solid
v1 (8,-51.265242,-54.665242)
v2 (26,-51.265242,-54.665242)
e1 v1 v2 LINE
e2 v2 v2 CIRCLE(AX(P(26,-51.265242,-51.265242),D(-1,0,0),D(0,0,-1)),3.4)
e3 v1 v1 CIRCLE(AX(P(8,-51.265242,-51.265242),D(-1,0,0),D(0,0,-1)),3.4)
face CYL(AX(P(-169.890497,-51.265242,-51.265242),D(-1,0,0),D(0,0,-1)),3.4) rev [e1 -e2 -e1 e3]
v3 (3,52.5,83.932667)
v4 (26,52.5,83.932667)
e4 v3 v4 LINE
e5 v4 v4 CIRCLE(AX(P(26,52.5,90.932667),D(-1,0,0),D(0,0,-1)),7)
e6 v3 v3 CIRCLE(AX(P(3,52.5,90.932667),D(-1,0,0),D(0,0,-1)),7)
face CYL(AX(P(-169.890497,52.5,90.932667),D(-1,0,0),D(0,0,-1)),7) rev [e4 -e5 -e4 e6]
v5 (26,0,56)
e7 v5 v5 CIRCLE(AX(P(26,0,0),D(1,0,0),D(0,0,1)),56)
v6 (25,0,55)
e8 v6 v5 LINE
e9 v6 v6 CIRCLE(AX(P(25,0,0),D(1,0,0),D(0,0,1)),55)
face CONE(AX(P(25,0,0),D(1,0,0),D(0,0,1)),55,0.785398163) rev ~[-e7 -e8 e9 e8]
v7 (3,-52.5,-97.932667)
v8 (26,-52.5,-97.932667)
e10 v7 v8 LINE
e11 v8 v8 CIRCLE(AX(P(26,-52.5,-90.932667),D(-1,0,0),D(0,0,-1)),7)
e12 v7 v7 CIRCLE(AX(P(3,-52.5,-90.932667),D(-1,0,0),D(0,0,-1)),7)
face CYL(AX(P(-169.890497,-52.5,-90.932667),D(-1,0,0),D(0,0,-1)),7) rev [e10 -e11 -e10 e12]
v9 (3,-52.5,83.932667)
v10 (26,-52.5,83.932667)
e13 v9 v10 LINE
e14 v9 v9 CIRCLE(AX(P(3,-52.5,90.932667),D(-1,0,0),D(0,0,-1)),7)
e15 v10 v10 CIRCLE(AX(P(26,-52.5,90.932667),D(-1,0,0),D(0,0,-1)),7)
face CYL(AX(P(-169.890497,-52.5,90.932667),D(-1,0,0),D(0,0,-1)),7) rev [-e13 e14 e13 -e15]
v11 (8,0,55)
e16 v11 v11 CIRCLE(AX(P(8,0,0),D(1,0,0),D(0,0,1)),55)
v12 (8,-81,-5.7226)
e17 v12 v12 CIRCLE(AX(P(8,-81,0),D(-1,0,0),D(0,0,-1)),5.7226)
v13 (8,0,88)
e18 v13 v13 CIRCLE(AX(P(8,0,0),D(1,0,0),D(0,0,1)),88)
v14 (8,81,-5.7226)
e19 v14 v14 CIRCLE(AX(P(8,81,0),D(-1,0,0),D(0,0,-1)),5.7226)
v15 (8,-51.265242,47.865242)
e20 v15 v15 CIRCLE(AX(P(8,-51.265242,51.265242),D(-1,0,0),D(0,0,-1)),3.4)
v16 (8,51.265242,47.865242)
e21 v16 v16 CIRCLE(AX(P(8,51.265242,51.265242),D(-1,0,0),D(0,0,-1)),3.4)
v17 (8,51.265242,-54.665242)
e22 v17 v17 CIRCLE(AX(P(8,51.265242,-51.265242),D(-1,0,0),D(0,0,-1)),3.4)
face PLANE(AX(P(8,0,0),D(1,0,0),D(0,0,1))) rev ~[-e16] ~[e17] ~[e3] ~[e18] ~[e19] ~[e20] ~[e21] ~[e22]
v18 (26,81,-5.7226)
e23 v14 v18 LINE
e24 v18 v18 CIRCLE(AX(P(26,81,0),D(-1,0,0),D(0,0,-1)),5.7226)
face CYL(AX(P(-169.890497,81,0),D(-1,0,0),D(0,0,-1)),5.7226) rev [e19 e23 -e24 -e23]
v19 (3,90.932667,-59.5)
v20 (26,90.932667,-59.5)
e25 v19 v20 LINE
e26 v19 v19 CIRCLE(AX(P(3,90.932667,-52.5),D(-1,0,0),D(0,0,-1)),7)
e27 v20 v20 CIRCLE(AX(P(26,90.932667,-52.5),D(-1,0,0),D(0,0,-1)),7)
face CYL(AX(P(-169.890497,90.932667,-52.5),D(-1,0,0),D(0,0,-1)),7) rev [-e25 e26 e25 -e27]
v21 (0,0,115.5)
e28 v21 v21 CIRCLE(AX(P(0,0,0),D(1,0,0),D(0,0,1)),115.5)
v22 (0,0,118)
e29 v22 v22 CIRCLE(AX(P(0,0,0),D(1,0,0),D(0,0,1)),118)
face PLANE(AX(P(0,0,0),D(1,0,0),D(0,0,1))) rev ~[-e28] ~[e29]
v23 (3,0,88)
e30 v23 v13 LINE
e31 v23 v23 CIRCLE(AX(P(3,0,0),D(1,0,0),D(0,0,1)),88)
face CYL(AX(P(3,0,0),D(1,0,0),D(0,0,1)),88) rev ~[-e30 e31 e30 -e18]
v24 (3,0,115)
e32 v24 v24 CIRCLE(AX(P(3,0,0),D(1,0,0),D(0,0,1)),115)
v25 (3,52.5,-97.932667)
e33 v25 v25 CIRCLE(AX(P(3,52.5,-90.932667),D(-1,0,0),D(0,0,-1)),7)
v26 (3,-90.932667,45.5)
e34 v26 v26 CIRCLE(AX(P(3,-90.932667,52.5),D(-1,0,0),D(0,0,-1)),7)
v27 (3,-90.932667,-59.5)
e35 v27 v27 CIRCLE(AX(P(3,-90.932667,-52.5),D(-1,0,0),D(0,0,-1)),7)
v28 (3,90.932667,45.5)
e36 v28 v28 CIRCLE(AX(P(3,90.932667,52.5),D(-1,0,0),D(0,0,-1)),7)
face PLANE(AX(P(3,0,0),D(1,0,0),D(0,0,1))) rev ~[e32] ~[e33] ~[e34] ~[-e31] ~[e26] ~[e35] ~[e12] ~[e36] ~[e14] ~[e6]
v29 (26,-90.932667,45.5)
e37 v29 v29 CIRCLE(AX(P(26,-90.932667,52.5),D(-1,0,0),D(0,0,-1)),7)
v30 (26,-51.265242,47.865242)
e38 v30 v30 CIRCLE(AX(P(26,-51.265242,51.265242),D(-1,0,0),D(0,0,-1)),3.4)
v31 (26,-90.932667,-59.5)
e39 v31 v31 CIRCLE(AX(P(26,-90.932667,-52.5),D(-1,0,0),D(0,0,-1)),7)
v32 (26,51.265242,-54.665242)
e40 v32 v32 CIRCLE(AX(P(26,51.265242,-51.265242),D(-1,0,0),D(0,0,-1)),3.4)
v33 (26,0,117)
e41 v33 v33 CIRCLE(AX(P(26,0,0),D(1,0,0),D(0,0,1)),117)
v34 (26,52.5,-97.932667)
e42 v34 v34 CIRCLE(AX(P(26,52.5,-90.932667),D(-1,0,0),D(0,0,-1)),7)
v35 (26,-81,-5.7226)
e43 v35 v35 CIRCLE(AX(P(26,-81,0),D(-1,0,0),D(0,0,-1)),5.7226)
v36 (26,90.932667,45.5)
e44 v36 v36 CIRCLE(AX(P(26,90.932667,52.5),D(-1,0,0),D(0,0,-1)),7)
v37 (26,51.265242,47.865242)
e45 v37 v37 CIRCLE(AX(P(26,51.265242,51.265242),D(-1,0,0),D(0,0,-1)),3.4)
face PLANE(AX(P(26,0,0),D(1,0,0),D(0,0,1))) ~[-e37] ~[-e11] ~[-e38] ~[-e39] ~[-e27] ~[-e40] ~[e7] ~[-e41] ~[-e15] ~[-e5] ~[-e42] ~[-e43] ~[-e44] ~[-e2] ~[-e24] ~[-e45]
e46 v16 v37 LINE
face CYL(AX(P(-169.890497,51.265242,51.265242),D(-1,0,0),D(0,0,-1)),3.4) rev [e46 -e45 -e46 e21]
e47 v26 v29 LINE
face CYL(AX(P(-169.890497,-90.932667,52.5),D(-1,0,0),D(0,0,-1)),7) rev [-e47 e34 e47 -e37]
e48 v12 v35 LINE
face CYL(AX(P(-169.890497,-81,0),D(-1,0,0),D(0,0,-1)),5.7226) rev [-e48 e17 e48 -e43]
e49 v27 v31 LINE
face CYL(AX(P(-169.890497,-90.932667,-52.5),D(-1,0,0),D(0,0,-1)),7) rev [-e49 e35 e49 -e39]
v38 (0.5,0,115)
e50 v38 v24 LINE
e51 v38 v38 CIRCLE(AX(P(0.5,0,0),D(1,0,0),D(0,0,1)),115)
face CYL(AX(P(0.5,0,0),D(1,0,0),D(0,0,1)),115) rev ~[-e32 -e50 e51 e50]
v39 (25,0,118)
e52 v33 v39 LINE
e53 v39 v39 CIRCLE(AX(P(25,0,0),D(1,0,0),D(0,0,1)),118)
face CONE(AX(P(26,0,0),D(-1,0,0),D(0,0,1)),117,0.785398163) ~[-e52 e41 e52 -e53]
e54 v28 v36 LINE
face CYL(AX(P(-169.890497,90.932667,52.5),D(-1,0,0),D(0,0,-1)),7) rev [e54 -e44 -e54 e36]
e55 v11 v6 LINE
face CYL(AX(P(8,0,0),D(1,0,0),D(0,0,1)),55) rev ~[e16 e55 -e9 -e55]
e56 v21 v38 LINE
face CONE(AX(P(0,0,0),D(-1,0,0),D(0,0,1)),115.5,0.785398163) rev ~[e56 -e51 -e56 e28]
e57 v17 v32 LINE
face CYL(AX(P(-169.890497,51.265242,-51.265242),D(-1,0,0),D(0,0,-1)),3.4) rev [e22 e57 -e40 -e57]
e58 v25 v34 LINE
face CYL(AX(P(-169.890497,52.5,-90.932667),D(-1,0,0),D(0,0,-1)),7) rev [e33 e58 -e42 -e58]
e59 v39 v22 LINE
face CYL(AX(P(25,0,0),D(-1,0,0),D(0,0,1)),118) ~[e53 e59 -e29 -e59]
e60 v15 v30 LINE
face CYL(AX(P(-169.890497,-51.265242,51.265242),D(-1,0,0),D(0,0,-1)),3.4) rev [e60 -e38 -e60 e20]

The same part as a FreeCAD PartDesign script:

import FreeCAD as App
import Part
import Sketcher

V = App.Vector
Q = App.Units.Quantity

doc = App.newDocument("Part")
body = doc.addObject("PartDesign::Body", "Body")

# Sketch on XY plane
sketch1 = body.newObject("Sketcher::SketchObject", "Sketch")
sketch1.AttachmentSupport = (doc.getObject("XY_Plane"), [""])
sketch1.MapMode = "FlatFace"
sketch1.addGeometry([
    Part.LineSegment(V(0, 115.5, 0), V(0.5, 115, 0)),  # 0
    Part.LineSegment(V(0.5, 115, 0), V(3, 115, 0)),  # 1
    Part.LineSegment(V(3, 115, 0), V(3, 88, 0)),  # 2
    Part.LineSegment(V(3, 88, 0), V(8, 88, 0)),  # 3
    Part.LineSegment(V(8, 88, 0), V(8, 55, 0)),  # 4
    Part.LineSegment(V(8, 55, 0), V(25, 55, 0)),  # 5
    Part.LineSegment(V(25, 55, 0), V(26, 56, 0)),  # 6
    Part.LineSegment(V(26, 56, 0), V(26, 117, 0)),  # 7
    Part.LineSegment(V(26, 117, 0), V(25, 118, 0)),  # 8
    Part.LineSegment(V(25, 118, 0), V(0, 118, 0)),  # 9
    Part.LineSegment(V(0, 118, 0), V(0, 115.5, 0)),  # 10
], False)
sketch1.addConstraint([
    Sketcher.Constraint("Coincident", 0, 2, 1, 1),
    Sketcher.Constraint("Coincident", 1, 2, 2, 1),
    Sketcher.Constraint("Coincident", 2, 2, 3, 1),
    Sketcher.Constraint("Coincident", 3, 2, 4, 1),
    Sketcher.Constraint("Coincident", 4, 2, 5, 1),
    Sketcher.Constraint("Coincident", 5, 2, 6, 1),
    Sketcher.Constraint("Coincident", 6, 2, 7, 1),
    Sketcher.Constraint("Coincident", 7, 2, 8, 1),
    Sketcher.Constraint("Coincident", 8, 2, 9, 1),
    Sketcher.Constraint("Coincident", 9, 2, 10, 1),
    Sketcher.Constraint("Coincident", 10, 2, 0, 1),
    Sketcher.Constraint("Horizontal", 1),
    Sketcher.Constraint("Vertical", 2),
    Sketcher.Constraint("Horizontal", 3),
    Sketcher.Constraint("Vertical", 4),
    Sketcher.Constraint("Horizontal", 5),
    Sketcher.Constraint("Vertical", 7),
    Sketcher.Constraint("Horizontal", 9),
    Sketcher.Constraint("Vertical", 10),
    Sketcher.Constraint("PointOnObject", 9, 2, -2),
    Sketcher.Constraint("Perpendicular", 0, 6),
    Sketcher.Constraint("Perpendicular", 6, 8),
    Sketcher.Constraint("Vertical", 5, 2, 8, 2),
    Sketcher.Constraint("Equal", 1, 10),
    Sketcher.Constraint("Equal", 6, 8),
    Sketcher.Constraint("DistanceX", 3, 1, 3, 2, Q("5 mm")),
    Sketcher.Constraint("DistanceX", 5, 1, 5, 2, Q("17 mm")),
    Sketcher.Constraint("DistanceX", 9, 2, 9, 1, Q("25 mm")),
    Sketcher.Constraint("DistanceY", 2, 2, 2, 1, Q("27 mm")),
    Sketcher.Constraint("DistanceY", 4, 2, 4, 1, Q("33 mm")),
    Sketcher.Constraint("DistanceY", 7, 1, 7, 2, Q("61 mm")),
    Sketcher.Constraint("DistanceX", 1, 1, 1, 2, Q("2.5 mm")),
    Sketcher.Constraint("DistanceY", -1, 1, 0, 2, Q("115 mm")),
])
revolution = body.newObject("PartDesign::Revolution", "Revolution")
revolution.Profile = sketch1
revolution.ReferenceAxis = (sketch1, ["H_Axis"])
revolution.Angle = 360

# Sketch on YZ plane
sketch2 = body.newObject("Sketcher::SketchObject", "Sketch001")
sketch2.AttachmentSupport = (doc.getObject("YZ_Plane"), [""])
sketch2.MapMode = "FlatFace"
sketch2.addGeometry([
    Part.Circle(V(52.5, -90.9, 0), V(0, 0, 1), 7),  # 0
    Part.Circle(V(90.9, -52.5, 0), V(0, 0, 1), 7),  # 1
    Part.Circle(V(90.9, 52.5, 0), V(0, 0, 1), 7),  # 2
    Part.Circle(V(52.5, 90.9, 0), V(0, 0, 1), 7),  # 3
    Part.Circle(V(-52.5, 90.9, 0), V(0, 0, 1), 7),  # 4
    Part.Circle(V(-90.9, 52.5, 0), V(0, 0, 1), 7),  # 5
    Part.Circle(V(-90.9, -52.5, 0), V(0, 0, 1), 7),  # 6
    Part.Circle(V(-52.5, -90.9, 0), V(0, 0, 1), 7),  # 7
    Part.Circle(V(51.3, -51.3, 0), V(0, 0, 1), 3.4),  # 8
    Part.Circle(V(51.3, 51.3, 0), V(0, 0, 1), 3.4),  # 9
    Part.Circle(V(-51.3, 51.3, 0), V(0, 0, 1), 3.4),  # 10
    Part.Circle(V(-51.3, -51.3, 0), V(0, 0, 1), 3.4),  # 11
    Part.Circle(V(81, 0, 0), V(0, 0, 1), 5.7),  # 12
    Part.Circle(V(-81, 0, 0), V(0, 0, 1), 5.7),  # 13
], False)
sketch2.addConstraint([
    Sketcher.Constraint("Equal", 0, 1),
    Sketcher.Constraint("Equal", 1, 2),
    Sketcher.Constraint("Equal", 2, 3),
    Sketcher.Constraint("Equal", 3, 4),
    Sketcher.Constraint("Equal", 4, 5),
    Sketcher.Constraint("Equal", 5, 6),
    Sketcher.Constraint("Equal", 6, 7),
    Sketcher.Constraint("Equal", 8, 9),
    Sketcher.Constraint("Equal", 9, 10),
    Sketcher.Constraint("Equal", 10, 11),
    Sketcher.Constraint("Equal", 12, 13),
    Sketcher.Constraint("Symmetric", 0, 3, 4, 3, -1, 1),
    Sketcher.Constraint("Symmetric", 1, 3, 5, 3, -1, 1),
    Sketcher.Constraint("Symmetric", 2, 3, 6, 3, -1, 1),
    Sketcher.Constraint("Symmetric", 3, 3, 7, 3, -1, 1),
    Sketcher.Constraint("Symmetric", 8, 3, 10, 3, -1, 1),
    Sketcher.Constraint("Symmetric", 9, 3, 11, 3, -1, 1),
    Sketcher.Constraint("Symmetric", 12, 3, 13, 3, -1, 1),
    Sketcher.Constraint("Symmetric", 3, 3, 4, 3, -2),
    Sketcher.Constraint("Symmetric", 2, 3, 5, 3, -2),
    Sketcher.Constraint("Symmetric", 9, 3, 10, 3, -2),
    Sketcher.Constraint("PointOnObject", 12, 3, -1),
    Sketcher.Constraint("Diameter", 0, Q("14 mm")),
    Sketcher.Constraint("Diameter", 8, Q("6.8 mm")),
    Sketcher.Constraint("DistanceX", -1, 1, 12, 3, Q("81 mm")),
    Sketcher.Constraint("DistanceY", 1, 3, 2, 3, Q("105 mm")),
    Sketcher.Constraint("DistanceX", 4, 3, 3, 3, Q("105 mm")),
    Sketcher.Constraint("Diameter", 12, Q("11.4452 mm")),
    Sketcher.Constraint("DistanceX", -1, 1, 8, 3, Q("51.265242 mm")),
    Sketcher.Constraint("DistanceY", 8, 3, -1, 1, Q("51.265242 mm")),
    Sketcher.Constraint("DistanceY", 8, 3, 3, 3, Q("142.197909 mm")),
    Sketcher.Constraint("DistanceX", -1, 1, 1, 3, Q("90.932667 mm")),
])
pocket1 = body.newObject("PartDesign::Pocket", "Pocket")
pocket1.Profile = sketch2
pocket1.Type = "ThroughAll"
pocket1.Midplane = True

doc.recompute()
